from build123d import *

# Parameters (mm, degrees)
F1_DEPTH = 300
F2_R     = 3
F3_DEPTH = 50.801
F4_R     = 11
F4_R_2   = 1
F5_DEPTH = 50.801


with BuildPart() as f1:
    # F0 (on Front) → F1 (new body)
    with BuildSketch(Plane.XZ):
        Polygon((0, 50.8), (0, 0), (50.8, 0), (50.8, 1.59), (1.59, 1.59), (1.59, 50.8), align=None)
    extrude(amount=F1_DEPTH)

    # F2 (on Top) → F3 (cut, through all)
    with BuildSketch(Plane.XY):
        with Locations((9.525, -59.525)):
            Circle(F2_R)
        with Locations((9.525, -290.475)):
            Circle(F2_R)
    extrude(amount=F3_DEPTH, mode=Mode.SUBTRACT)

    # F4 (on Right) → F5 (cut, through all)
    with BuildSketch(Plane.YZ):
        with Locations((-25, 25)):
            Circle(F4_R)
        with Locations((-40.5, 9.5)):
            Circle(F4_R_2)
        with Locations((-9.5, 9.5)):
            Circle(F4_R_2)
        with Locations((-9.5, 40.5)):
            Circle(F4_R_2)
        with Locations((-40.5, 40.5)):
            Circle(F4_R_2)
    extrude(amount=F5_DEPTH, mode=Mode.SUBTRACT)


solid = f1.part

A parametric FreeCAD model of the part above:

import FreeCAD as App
import Part
import Sketcher
from FreeCAD import Vector


def add_polygon(sketch, points):
    """Adds a closed chain of lines whose ends are joined by coincident constraints."""
    first, n = sketch.GeometryCount, len(points)
    for a, b in zip(points, points[1:] + points[:1]):
        sketch.addGeometry(Part.LineSegment(App.Vector(*a, 0), App.Vector(*b, 0)), False)
    for i in range(n):
        sketch.addConstraint(Sketcher.Constraint("Coincident", first + i, 2, first + (i + 1) % n, 1))

doc = App.newDocument("Part")
body = doc.addObject("PartDesign::Body", "Body")

# Sketch on XZ plane
sketch1 = body.newObject("Sketcher::SketchObject", "Sketch")
sketch1.AttachmentSupport = (doc.getObject("XZ_Plane"), [""])
sketch1.MapMode = "FlatFace"
add_polygon(sketch1, [(0, 50.8), (0, 0), (50.8, 0), (50.8, 1.6), (1.6, 1.6), (1.6, 50.8)])  # lines 0-5
sketch1.addConstraint([
    Sketcher.Constraint("Vertical", 0),
    Sketcher.Constraint("Horizontal", 1),
    Sketcher.Constraint("Vertical", 2),
    Sketcher.Constraint("Horizontal", 3),
    Sketcher.Constraint("Vertical", 4),
    Sketcher.Constraint("Horizontal", 5),
    Sketcher.Constraint("Coincident", 0, 2, -1, 1),
    Sketcher.Constraint("Equal", 1, 0),
    Sketcher.Constraint("Equal", 5, 2),
    Sketcher.Constraint("DistanceX", 1, 1, 1, 2, 50.8),
    Sketcher.Constraint("DistanceX", 3, 2, 3, 1, 49.21),
])
pad1 = body.newObject("PartDesign::Pad", "Pad")
pad1.Profile = sketch1
pad1.Length = 300

# Sketch on XY plane
sketch2 = body.newObject("Sketcher::SketchObject", "Sketch001")
sketch2.AttachmentSupport = (doc.getObject("XY_Plane"), [""])
sketch2.MapMode = "FlatFace"
sketch2.addGeometry([
    Part.Circle(Vector(9.5, -59.5, 0), Vector(0, 0, 1), 3),
    Part.Circle(Vector(9.5, -290.5, 0), Vector(0, 0, 1), 3),
], False)
sketch2.addConstraint([
    Sketcher.Constraint("Equal", 0, 1),
    Sketcher.Constraint("Vertical", 0, 3, 1, 3),
    Sketcher.Constraint("Diameter", 0, 6.0),
    Sketcher.Constraint("DistanceY", 1, 3, 0, 3, 230.95),
    Sketcher.Constraint("DistanceX", -1, 1, 0, 3, 9.525),
    Sketcher.Constraint("DistanceY", 0, 3, -1, 1, 59.525),
])
pocket1 = body.newObject("PartDesign::Pocket", "Pocket")
pocket1.Profile = sketch2
pocket1.Type = "ThroughAll"
pocket1.Reversed = True

# Sketch on YZ plane
sketch3 = body.newObject("Sketcher::SketchObject", "Sketch002")
sketch3.AttachmentSupport = (doc.getObject("YZ_Plane"), [""])
sketch3.MapMode = "FlatFace"
sketch3.addGeometry([
    Part.Circle(Vector(-25, 25, 0), Vector(0, 0, 1), 11),  # 0
    Part.Circle(Vector(-40.5, 9.5, 0), Vector(0, 0, 1), 1),  # 1
    Part.Circle(Vector(-9.5, 9.5, 0), Vector(0, 0, 1), 1),  # 2
    Part.Circle(Vector(-9.5, 40.5, 0), Vector(0, 0, 1), 1),  # 3
    Part.Circle(Vector(-40.5, 40.5, 0), Vector(0, 0, 1), 1),  # 4
], False)
sketch3.addConstraint([
    Sketcher.Constraint("Equal", 1, 2),
    Sketcher.Constraint("Equal", 2, 3),
    Sketcher.Constraint("Equal", 3, 4),
    Sketcher.Constraint("Horizontal", 1, 3, 2, 3),
    Sketcher.Constraint("Horizontal", 3, 3, 4, 3),
    Sketcher.Constraint("Vertical", 2, 3, 3, 3),
    Sketcher.Constraint("Vertical", 1, 3, 4, 3),
    Sketcher.Constraint("Diameter", 0, 22.0),
    Sketcher.Constraint("Diameter", 1, 2.0),
    Sketcher.Constraint("DistanceX", 0, 3, -1, 1, 25.0),
    Sketcher.Constraint("DistanceY", -1, 1, 0, 3, 25.0),
    Sketcher.Constraint("DistanceX", 1, 3, 2, 3, 31.0),
    Sketcher.Constraint("DistanceY", 2, 3, 3, 3, 31.0),
    Sketcher.Constraint("DistanceX", 1, 3, -1, 1, 40.5),
    Sketcher.Constraint("DistanceY", -1, 1, 1, 3, 9.5),
])
pocket2 = body.newObject("PartDesign::Pocket", "Pocket001")
pocket2.Profile = sketch3
pocket2.Type = "ThroughAll"
pocket2.Reversed = True

doc.recompute()
